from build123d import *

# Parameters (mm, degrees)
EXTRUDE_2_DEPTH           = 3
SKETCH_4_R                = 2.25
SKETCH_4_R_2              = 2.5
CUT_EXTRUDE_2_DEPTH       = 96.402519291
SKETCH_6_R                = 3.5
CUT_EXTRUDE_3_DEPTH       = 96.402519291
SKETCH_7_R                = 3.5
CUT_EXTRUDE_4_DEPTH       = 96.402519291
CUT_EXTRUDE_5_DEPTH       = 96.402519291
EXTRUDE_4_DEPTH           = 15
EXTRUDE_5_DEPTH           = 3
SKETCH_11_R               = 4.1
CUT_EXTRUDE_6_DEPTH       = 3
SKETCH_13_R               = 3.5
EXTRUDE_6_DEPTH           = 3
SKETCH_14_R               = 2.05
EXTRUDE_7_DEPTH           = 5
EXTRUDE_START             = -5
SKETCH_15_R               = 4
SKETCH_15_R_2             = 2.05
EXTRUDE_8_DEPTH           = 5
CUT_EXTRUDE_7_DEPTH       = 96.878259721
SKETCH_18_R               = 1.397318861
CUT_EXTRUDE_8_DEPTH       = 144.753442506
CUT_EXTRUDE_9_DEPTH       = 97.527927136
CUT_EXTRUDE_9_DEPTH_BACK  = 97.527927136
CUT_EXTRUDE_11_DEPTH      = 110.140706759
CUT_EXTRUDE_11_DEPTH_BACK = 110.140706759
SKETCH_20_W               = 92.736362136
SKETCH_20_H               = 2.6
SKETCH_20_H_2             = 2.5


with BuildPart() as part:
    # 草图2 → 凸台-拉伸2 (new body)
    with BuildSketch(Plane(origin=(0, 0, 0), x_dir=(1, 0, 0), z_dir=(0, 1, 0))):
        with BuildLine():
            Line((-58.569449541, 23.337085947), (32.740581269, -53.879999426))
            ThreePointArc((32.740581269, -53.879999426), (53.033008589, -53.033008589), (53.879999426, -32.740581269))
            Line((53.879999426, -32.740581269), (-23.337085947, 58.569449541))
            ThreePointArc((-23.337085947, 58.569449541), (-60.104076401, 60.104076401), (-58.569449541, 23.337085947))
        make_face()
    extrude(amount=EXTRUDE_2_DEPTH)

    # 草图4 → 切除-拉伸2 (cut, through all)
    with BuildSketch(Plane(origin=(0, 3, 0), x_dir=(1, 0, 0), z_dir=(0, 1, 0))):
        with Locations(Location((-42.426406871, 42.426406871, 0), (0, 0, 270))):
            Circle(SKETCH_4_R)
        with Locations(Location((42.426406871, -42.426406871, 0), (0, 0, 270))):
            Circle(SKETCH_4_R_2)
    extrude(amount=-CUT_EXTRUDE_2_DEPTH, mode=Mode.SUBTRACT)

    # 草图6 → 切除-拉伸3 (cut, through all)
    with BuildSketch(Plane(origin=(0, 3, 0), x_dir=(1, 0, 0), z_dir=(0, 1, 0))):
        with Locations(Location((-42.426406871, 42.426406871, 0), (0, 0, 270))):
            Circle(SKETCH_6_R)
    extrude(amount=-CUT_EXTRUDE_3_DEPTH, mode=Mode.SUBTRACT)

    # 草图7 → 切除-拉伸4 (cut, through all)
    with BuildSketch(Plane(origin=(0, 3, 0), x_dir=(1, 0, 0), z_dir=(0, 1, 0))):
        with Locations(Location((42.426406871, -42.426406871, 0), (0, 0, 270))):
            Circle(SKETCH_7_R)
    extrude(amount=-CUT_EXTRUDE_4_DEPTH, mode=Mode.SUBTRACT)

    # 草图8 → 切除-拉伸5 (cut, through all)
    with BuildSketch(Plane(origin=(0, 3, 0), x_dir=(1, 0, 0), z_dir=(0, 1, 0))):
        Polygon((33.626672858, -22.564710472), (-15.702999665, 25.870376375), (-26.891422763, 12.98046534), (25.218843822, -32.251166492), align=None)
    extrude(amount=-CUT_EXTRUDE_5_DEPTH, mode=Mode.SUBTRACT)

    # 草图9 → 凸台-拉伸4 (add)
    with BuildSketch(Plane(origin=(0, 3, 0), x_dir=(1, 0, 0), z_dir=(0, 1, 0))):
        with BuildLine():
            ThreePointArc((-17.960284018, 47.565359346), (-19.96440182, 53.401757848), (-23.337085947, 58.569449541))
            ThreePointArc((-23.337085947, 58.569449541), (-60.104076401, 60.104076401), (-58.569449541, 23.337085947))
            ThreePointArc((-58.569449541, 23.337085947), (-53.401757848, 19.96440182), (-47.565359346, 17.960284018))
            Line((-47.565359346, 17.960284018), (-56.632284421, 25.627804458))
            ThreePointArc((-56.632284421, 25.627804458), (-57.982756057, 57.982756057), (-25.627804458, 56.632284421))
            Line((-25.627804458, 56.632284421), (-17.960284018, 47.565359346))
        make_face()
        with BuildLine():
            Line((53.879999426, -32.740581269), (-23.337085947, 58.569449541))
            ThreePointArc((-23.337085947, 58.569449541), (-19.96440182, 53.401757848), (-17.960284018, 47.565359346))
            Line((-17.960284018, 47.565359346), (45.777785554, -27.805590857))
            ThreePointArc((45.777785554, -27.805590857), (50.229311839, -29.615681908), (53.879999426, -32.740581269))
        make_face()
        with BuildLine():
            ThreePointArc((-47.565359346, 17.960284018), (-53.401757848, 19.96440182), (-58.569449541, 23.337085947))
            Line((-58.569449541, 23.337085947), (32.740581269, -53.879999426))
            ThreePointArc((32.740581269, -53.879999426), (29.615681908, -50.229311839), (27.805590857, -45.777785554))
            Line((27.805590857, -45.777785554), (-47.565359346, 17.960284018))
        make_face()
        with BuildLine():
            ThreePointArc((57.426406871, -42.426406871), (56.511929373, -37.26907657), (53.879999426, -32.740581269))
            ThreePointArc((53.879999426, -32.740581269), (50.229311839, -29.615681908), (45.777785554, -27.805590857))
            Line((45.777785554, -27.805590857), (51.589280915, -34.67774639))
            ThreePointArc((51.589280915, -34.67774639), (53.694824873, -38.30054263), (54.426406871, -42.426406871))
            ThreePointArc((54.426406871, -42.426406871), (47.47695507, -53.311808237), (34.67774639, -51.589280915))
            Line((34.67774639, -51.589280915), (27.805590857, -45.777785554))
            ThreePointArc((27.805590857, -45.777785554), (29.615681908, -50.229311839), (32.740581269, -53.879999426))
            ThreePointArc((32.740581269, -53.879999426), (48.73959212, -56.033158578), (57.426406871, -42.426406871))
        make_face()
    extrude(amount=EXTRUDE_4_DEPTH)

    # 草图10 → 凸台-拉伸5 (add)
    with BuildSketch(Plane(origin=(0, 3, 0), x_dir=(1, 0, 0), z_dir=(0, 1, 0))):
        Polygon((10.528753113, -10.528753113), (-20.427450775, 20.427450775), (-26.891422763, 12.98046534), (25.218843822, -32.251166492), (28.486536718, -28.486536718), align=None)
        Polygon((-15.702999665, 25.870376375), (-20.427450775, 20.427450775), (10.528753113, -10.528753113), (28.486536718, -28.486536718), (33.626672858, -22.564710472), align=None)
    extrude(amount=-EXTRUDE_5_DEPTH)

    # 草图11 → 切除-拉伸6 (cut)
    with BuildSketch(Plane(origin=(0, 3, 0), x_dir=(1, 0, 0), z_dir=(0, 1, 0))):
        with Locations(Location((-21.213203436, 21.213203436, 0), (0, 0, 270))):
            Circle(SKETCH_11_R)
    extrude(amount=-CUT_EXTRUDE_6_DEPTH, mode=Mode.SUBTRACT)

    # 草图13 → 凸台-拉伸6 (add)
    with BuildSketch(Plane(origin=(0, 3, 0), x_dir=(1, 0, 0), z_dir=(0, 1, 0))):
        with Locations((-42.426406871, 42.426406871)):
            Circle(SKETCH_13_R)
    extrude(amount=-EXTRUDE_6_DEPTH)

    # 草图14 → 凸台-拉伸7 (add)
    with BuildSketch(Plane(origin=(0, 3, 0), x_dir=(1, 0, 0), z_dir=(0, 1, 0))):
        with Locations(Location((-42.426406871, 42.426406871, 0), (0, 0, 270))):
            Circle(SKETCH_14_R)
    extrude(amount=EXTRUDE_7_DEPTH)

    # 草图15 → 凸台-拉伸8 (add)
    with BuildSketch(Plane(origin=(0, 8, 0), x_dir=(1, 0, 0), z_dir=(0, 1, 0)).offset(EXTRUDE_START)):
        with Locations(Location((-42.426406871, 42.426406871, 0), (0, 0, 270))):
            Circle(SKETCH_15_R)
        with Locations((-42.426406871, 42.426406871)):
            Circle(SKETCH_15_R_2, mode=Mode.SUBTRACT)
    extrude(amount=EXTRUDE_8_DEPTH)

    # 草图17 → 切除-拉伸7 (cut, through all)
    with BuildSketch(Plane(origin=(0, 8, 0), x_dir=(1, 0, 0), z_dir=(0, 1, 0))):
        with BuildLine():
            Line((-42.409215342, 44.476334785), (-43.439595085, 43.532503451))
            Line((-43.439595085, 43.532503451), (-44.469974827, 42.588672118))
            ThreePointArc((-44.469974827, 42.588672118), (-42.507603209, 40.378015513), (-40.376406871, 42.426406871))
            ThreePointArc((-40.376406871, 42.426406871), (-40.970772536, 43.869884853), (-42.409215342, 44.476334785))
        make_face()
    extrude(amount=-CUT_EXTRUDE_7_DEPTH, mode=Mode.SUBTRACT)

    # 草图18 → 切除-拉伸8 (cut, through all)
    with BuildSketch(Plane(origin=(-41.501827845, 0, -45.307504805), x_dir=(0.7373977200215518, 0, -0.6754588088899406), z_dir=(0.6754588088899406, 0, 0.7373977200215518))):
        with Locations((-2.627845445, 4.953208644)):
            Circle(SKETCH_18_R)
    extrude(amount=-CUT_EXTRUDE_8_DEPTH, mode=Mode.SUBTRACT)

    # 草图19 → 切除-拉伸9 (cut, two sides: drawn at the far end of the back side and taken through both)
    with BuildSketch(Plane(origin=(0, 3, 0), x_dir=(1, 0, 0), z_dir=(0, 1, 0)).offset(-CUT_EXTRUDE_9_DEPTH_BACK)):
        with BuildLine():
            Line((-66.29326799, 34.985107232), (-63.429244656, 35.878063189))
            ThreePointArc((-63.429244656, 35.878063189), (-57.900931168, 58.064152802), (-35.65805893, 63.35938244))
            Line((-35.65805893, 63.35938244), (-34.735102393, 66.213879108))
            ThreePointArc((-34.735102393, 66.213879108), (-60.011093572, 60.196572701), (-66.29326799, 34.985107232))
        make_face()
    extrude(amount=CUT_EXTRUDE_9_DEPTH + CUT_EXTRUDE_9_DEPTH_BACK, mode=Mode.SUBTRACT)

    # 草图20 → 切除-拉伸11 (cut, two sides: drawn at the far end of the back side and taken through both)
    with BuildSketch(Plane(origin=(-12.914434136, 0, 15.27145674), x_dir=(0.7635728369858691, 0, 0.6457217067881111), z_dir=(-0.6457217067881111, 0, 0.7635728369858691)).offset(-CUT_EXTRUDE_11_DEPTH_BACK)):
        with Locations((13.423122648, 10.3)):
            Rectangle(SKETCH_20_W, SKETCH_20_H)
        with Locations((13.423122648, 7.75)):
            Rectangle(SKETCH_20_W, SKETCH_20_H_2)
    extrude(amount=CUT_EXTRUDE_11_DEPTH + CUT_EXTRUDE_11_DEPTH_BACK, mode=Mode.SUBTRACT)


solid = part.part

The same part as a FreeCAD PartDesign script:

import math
import FreeCAD as App
import Part
import Sketcher

V = App.Vector
Q = App.Units.Quantity


def add_polygon(sketch, points):
    """Adds a closed chain of lines whose ends are joined by coincident constraints."""
    first, n = sketch.GeometryCount, len(points)
    for a, b in zip(points, points[1:] + points[:1]):
        sketch.addGeometry(Part.LineSegment(App.Vector(*a, 0), App.Vector(*b, 0)), False)
    for i in range(n):
        sketch.addConstraint(Sketcher.Constraint("Coincident", first + i, 2, first + (i + 1) % n, 1))

doc = App.newDocument("Part")
body = doc.addObject("PartDesign::Body", "Body")

sketch1 = doc.addObject("Sketcher::SketchObject", "Sketch")
body.addObject(sketch1)
sketch1.AttachmentSupport = (doc.XZ_Plane, [""])
sketch1.MapMode = "FlatFace"
sketch1.addGeometry([
    Part.LineSegment(V(-59, -23, 0), V(33, 54, 0)),
    Part.ArcOfCircle(Part.Circle(V(42, 42, 0), V(0, 0, 1), 15), math.radians(-40), math.radians(130)),
    Part.LineSegment(V(54, 33, 0), V(-23, -59, 0)),
    Part.ArcOfCircle(Part.Circle(V(-42, -42, 0), V(0, 0, 1), 25), math.radians(130), math.radians(320)),
], False)
sketch1.addConstraint([
    Sketcher.Constraint("Tangent", 0, 2, 1, 2),
    Sketcher.Constraint("Tangent", 1, 1, 2, 1),
    Sketcher.Constraint("Tangent", 2, 2, 3, 2),
    Sketcher.Constraint("Tangent", 3, 1, 0, 1),
    Sketcher.Constraint("Symmetric", 1, 3, 3, 3, -1, 1),
    Sketcher.Constraint("Radius", 1, Q("15 mm")),
    Sketcher.Constraint("Radius", 3, Q("25 mm")),
    Sketcher.Constraint("DistanceY", -1, 1, 0, 2, Q("53.879999 mm")),
    Sketcher.Constraint("DistanceX", -1, 1, 1, 1, Q("53.879999 mm")),
])
pad1 = doc.addObject("PartDesign::Pad", "Pad")
body.addObject(pad1)
pad1.Profile = sketch1
pad1.Length = 3
pad1.Reversed = True

sketch2 = doc.addObject("Sketcher::SketchObject", "Sketch001")
body.addObject(sketch2)
sketch2.AttachmentSupport = (doc.XZ_Plane, [""])
sketch2.MapMode = "FlatFace"
sketch2.AttachmentOffset = App.Placement(V(0, 0, -3), App.Rotation())
sketch2.addGeometry([
    Part.Circle(V(-42.4, -42.4, 0), V(0, 0, 1), 2.2),
    Part.Circle(V(42.4, 42.4, 0), V(0, 0, 1), 2.5),
], False)
sketch2.addConstraint([
    Sketcher.Constraint("Symmetric", 0, 3, 1, 3, -1, 1),
    Sketcher.Constraint("Diameter", 1, Q("5 mm")),
    Sketcher.Constraint("Diameter", 0, Q("4.5 mm")),
    Sketcher.Constraint("DistanceX", 0, 3, -1, 1, Q("42.426407 mm")),
    Sketcher.Constraint("DistanceY", 0, 3, -1, 1, Q("42.426407 mm")),
])
pocket1 = doc.addObject("PartDesign::Pocket", "Pocket")
body.addObject(pocket1)
pocket1.Profile = sketch2
pocket1.Type = "ThroughAll"
pocket1.Reversed = True

sketch3 = doc.addObject("Sketcher::SketchObject", "Sketch002")
body.addObject(sketch3)
sketch3.AttachmentSupport = (doc.XZ_Plane, [""])
sketch3.MapMode = "FlatFace"
sketch3.AttachmentOffset = App.Placement(V(0, 0, -3), App.Rotation())
sketch3.addGeometry(Part.Circle(V(-42.4, -42.4, 0), V(0, 0, 1), 3.5), False)
sketch3.addConstraint([
    Sketcher.Constraint("Diameter", 0, Q("7 mm")),
    Sketcher.Constraint("DistanceX", 0, 3, -1, 1, Q("42.426407 mm")),
    Sketcher.Constraint("DistanceY", 0, 3, -1, 1, Q("42.426407 mm")),
])
pocket2 = doc.addObject("PartDesign::Pocket", "Pocket001")
body.addObject(pocket2)
pocket2.Profile = sketch3
pocket2.Type = "ThroughAll"
pocket2.Reversed = True

sketch4 = doc.addObject("Sketcher::SketchObject", "Sketch003")
body.addObject(sketch4)
sketch4.AttachmentSupport = (doc.XZ_Plane, [""])
sketch4.MapMode = "FlatFace"
sketch4.AttachmentOffset = App.Placement(V(0, 0, -3), App.Rotation())
sketch4.addGeometry(Part.Circle(V(42.4, 42.4, 0), V(0, 0, 1), 3.5), False)
sketch4.addConstraint([
    Sketcher.Constraint("Diameter", 0, Q("7 mm")),
    Sketcher.Constraint("DistanceX", -1, 1, 0, 3, Q("42.426407 mm")),
    Sketcher.Constraint("DistanceY", -1, 1, 0, 3, Q("42.426407 mm")),
])
pocket3 = doc.addObject("PartDesign::Pocket", "Pocket002")
body.addObject(pocket3)
pocket3.Profile = sketch4
pocket3.Type = "ThroughAll"
pocket3.Reversed = True

sketch5 = doc.addObject("Sketcher::SketchObject", "Sketch004")
body.addObject(sketch5)
sketch5.AttachmentSupport = (doc.XZ_Plane, [""])
sketch5.MapMode = "FlatFace"
sketch5.AttachmentOffset = App.Placement(V(0, 0, -3), App.Rotation())
add_polygon(sketch5, [(34, 23), (-16, -26), (-27, -13), (25, 32)])
sketch5.addConstraint([
    Sketcher.Constraint("Perpendicular", 1, 2),
    Sketcher.Constraint("Perpendicular", 2, 3),
    Sketcher.Constraint("DistanceX", 0, 2, -1, 1, Q("15.703 mm")),
    Sketcher.Constraint("Distance", 0, Q("69.133018 mm")),
    Sketcher.Constraint("Distance", 1, Q("17.06841 mm")),
    Sketcher.Constraint("DistanceY", -1, 1, 3, 2, Q("22.56471 mm")),
    Sketcher.Constraint("DistanceY", 0, 2, 1, 2, Q("12.889911 mm")),
    Sketcher.Constraint("DistanceY", 1, 2, 2, 2, Q("45.231632 mm")),
])
pocket4 = doc.addObject("PartDesign::Pocket", "Pocket003")
body.addObject(pocket4)
pocket4.Profile = sketch5
pocket4.Type = "ThroughAll"
pocket4.Reversed = True

sketch6 = doc.addObject("Sketcher::SketchObject", "Sketch005")
body.addObject(sketch6)
sketch6.AttachmentSupport = (doc.XZ_Plane, [""])
sketch6.MapMode = "FlatFace"
sketch6.AttachmentOffset = App.Placement(V(0, 0, -3), App.Rotation())
sketch6.addGeometry([
    Part.ArcOfCircle(Part.Circle(V(-42, -42, 0), V(0, 0, 1), 25), math.radians(130), math.radians(320)),
    Part.LineSegment(V(-59, -23, 0), V(33, 54, 0)),
    Part.ArcOfCircle(Part.Circle(V(42, 42, 0), V(0, 0, 1), 15), math.radians(0), math.radians(130)),
    Part.ArcOfCircle(Part.Circle(V(42, 42, 0), V(0, 0, 1), 15), math.radians(-40), math.radians(0)),
    Part.LineSegment(V(54, 33, 0), V(-23, -59, 0)),
    Part.LineSegment(V(28, 46, 0), V(-48, -18, 0)),
    Part.LineSegment(V(-48, -18, 0), V(-57, -26, 0)),
    Part.ArcOfCircle(Part.Circle(V(-42, -42, 0), V(0, 0, 1), 22), math.radians(130), math.radians(320)),
    Part.LineSegment(V(-26, -57, 0), V(-18, -48, 0)),
    Part.LineSegment(V(-18, -48, 0), V(46, 28, 0)),
    Part.LineSegment(V(46, 28, 0), V(52, 35, 0)),
    Part.ArcOfCircle(Part.Circle(V(42, 42, 0), V(0, 0, 1), 12), math.radians(-40), math.radians(0)),
    Part.ArcOfCircle(Part.Circle(V(42, 42, 0), V(0, 0, 1), 12), math.radians(0), math.radians(130)),
    Part.LineSegment(V(35, 52, 0), V(28, 46, 0)),
], False)
sketch6.addConstraint([
    Sketcher.Constraint("Tangent", 0, 1, 1, 1),
    Sketcher.Constraint("Tangent", 1, 2, 2, 2),
    Sketcher.Constraint("Tangent", 2, 1, 3, 2),
    Sketcher.Constraint("Tangent", 3, 1, 4, 1),
    Sketcher.Constraint("Tangent", 4, 2, 0, 2),
    Sketcher.Constraint("Coincident", 5, 2, 6, 1),
    Sketcher.Constraint("Tangent", 6, 2, 7, 1),
    Sketcher.Constraint("Tangent", 7, 2, 8, 1),
    Sketcher.Constraint("Coincident", 8, 2, 9, 1),
    Sketcher.Constraint("Coincident", 9, 2, 10, 1),
    Sketcher.Constraint("Tangent", 10, 2, 11, 1),
    Sketcher.Constraint("Tangent", 11, 2, 12, 1),
    Sketcher.Constraint("Tangent", 12, 2, 13, 1),
    Sketcher.Constraint("Coincident", 13, 2, 5, 1),
    Sketcher.Constraint("Coincident", 7, 3, 0, 3),
    Sketcher.Constraint("Coincident", 11, 3, 2, 3),
    Sketcher.Constraint("Equal", 2, 3),
    Sketcher.Constraint("Equal", 11, 12),
    Sketcher.Constraint("Symmetric", 0, 3, 2, 3, -1, 1),
    Sketcher.Constraint("Parallel", 1, 5),
    Sketcher.Constraint("Parallel", 5, 6),
    Sketcher.Constraint("Parallel", 4, 8),
    Sketcher.Constraint("Parallel", 8, 9),
    Sketcher.Constraint("Parallel", 9, 10),
    Sketcher.Constraint("Horizontal", 12, 3, 2, 1),
    Sketcher.Constraint("Horizontal", 2, 1, 11, 2),
    Sketcher.Constraint("Equal", 6, 8),
    Sketcher.Constraint("Equal", 5, 9),
    Sketcher.Constraint("Radius", 0, Q("25 mm")),
    Sketcher.Constraint("Radius", 2, Q("15 mm")),
    Sketcher.Constraint("Radius", 7, Q("22 mm")),
    Sketcher.Constraint("Distance", 10, Q("9 mm")),
    Sketcher.Constraint("DistanceY", -1, 1, 1, 2, Q("53.879999 mm")),
    Sketcher.Constraint("DistanceX", -1, 1, 3, 1, Q("53.879999 mm")),
    Sketcher.Constraint("DistanceY", 7, 2, 5, 2, Q("38.672 mm")),
])
pad2 = doc.addObject("PartDesign::Pad", "Pad001")
body.addObject(pad2)
pad2.Profile = sketch6
pad2.Length = 15
pad2.Reversed = True

sketch7 = doc.addObject("Sketcher::SketchObject", "Sketch006")
body.addObject(sketch7)
sketch7.AttachmentSupport = (doc.XZ_Plane, [""])
sketch7.MapMode = "FlatFace"
sketch7.AttachmentOffset = App.Placement(V(0, 0, -3), App.Rotation())
add_polygon(sketch7, [(-20.4, -20.4), (-26.9, -13), (25.2, 32.3), (28.5, 28.5), (33.6, 22.6), (-15.7, -25.9)])
sketch7.addConstraint([
    Sketcher.Constraint("Perpendicular", 0, 1),
    Sketcher.Constraint("Perpendicular", 1, 2),
    Sketcher.Constraint("Parallel", 2, 3),
    Sketcher.Constraint("Parallel", 3, 5),
    Sketcher.Constraint("DistanceX", 4, 2, -1, 1, Q("15.703 mm")),
    Sketcher.Constraint("Distance", 0, Q("9.861061 mm")),
    Sketcher.Constraint("Distance", 4, Q("69.133018 mm")),
    Sketcher.Constraint("Distance", 5, Q("7.207349 mm")),
    Sketcher.Constraint("DistanceY", -1, 1, 3, 2, Q("22.56471 mm")),
    Sketcher.Constraint("DistanceX", 5, 2, -1, 1, Q("20.427451 mm")),
    Sketcher.Constraint("DistanceY", 5, 2, -1, 1, Q("20.427451 mm")),
    Sketcher.Constraint("DistanceY", 2, 2, 1, 2, Q("3.76463 mm")),
])
pad3 = doc.addObject("PartDesign::Pad", "Pad002")
body.addObject(pad3)
pad3.Profile = sketch7
pad3.Length = 3

sketch8 = doc.addObject("Sketcher::SketchObject", "Sketch007")
body.addObject(sketch8)
sketch8.AttachmentSupport = (doc.XZ_Plane, [""])
sketch8.MapMode = "FlatFace"
sketch8.AttachmentOffset = App.Placement(V(0, 0, -3), App.Rotation())
sketch8.addGeometry(Part.Circle(V(-21.2, -21.2, 0), V(0, 0, 1), 4.1), False)
sketch8.addConstraint([
    Sketcher.Constraint("Diameter", 0, Q("8.2 mm")),
    Sketcher.Constraint("DistanceX", 0, 3, -1, 1, Q("21.213203 mm")),
    Sketcher.Constraint("DistanceY", 0, 3, -1, 1, Q("21.213203 mm")),
])
pocket5 = doc.addObject("PartDesign::Pocket", "Pocket004")
body.addObject(pocket5)
pocket5.Profile = sketch8
pocket5.Length = 3
pocket5.Reversed = True

sketch9 = doc.addObject("Sketcher::SketchObject", "Sketch008")
body.addObject(sketch9)
sketch9.AttachmentSupport = (doc.XZ_Plane, [""])
sketch9.MapMode = "FlatFace"
sketch9.AttachmentOffset = App.Placement(V(0, 0, -3), App.Rotation())
sketch9.addGeometry(Part.Circle(V(-42.4, -42.4, 0), V(0, 0, 1), 3.5), False)
sketch9.addConstraint([
    Sketcher.Constraint("Diameter", 0, Q("7 mm")),
    Sketcher.Constraint("DistanceX", 0, 3, -1, 1, Q("42.426407 mm")),
    Sketcher.Constraint("DistanceY", 0, 3, -1, 1, Q("42.426407 mm")),
])
pad4 = doc.addObject("PartDesign::Pad", "Pad003")
body.addObject(pad4)
pad4.Profile = sketch9
pad4.Length = 3

sketch10 = doc.addObject("Sketcher::SketchObject", "Sketch009")
body.addObject(sketch10)
sketch10.AttachmentSupport = (doc.XZ_Plane, [""])
sketch10.MapMode = "FlatFace"
sketch10.AttachmentOffset = App.Placement(V(0, 0, -3), App.Rotation())
sketch10.addGeometry(Part.Circle(V(-42.4, -42.4, 0), V(0, 0, 1), 2), False)
sketch10.addConstraint([
    Sketcher.Constraint("Diameter", 0, Q("4.1 mm")),
    Sketcher.Constraint("DistanceX", 0, 3, -1, 1, Q("42.426407 mm")),
    Sketcher.Constraint("DistanceY", 0, 3, -1, 1, Q("42.426407 mm")),
])
pad5 = doc.addObject("PartDesign::Pad", "Pad004")
body.addObject(pad5)
pad5.Profile = sketch10
pad5.Length = 5
pad5.Reversed = True

sketch11 = doc.addObject("Sketcher::SketchObject", "Sketch010")
body.addObject(sketch11)
sketch11.AttachmentSupport = (doc.XZ_Plane, [""])
sketch11.MapMode = "FlatFace"
sketch11.AttachmentOffset = App.Placement(V(0, 0, -3), App.Rotation())
sketch11.addGeometry([
    Part.Circle(V(-42.4, -42.4, 0), V(0, 0, 1), 4),
    Part.Circle(V(-42.4, -42.4, 0), V(0, 0, 1), 2),
], False)
sketch11.addConstraint([
    Sketcher.Constraint("Coincident", 1, 3, 0, 3),
    Sketcher.Constraint("Diameter", 0, Q("8 mm")),
    Sketcher.Constraint("Diameter", 1, Q("4.1 mm")),
    Sketcher.Constraint("DistanceX", 0, 3, -1, 1, Q("42.426407 mm")),
    Sketcher.Constraint("DistanceY", 0, 3, -1, 1, Q("42.426407 mm")),
])
pad6 = doc.addObject("PartDesign::Pad", "Pad005")
body.addObject(pad6)
pad6.Profile = sketch11
pad6.Length = 5
pad6.Reversed = True

sketch12 = doc.addObject("Sketcher::SketchObject", "Sketch011")
body.addObject(sketch12)
sketch12.AttachmentSupport = (doc.XZ_Plane, [""])
sketch12.MapMode = "FlatFace"
sketch12.AttachmentOffset = App.Placement(V(0, 0, -8), App.Rotation())
sketch12.addGeometry([
    Part.LineSegment(V(-42.4, -44.5, 0), V(-43.4, -43.5, 0)),
    Part.LineSegment(V(-43.4, -43.5, 0), V(-44.5, -42.6, 0)),
    Part.ArcOfCircle(Part.Circle(V(-42.4, -42.4, 0), V(0, 0, 1), 2), math.radians(0), math.radians(185)),
    Part.ArcOfCircle(Part.Circle(V(-42.4, -42.4, 0), V(0, 0, 1), 2), math.radians(-90), math.radians(0)),
], False)
sketch12.addConstraint([
    Sketcher.Constraint("Coincident", 0, 2, 1, 1),
    Sketcher.Constraint("Coincident", 1, 2, 2, 2),
    Sketcher.Constraint("Tangent", 2, 1, 3, 2),
    Sketcher.Constraint("Coincident", 3, 1, 0, 1),
    Sketcher.Constraint("Equal", 2, 3),
    Sketcher.Constraint("Parallel", 0, 1),
    Sketcher.Constraint("Horizontal", 3, 3, 2, 1),
    Sketcher.Constraint("Equal", 0, 1),
    Sketcher.Constraint("Radius", 2, Q("2.05 mm")),
    Sketcher.Constraint("Distance", 0, Q("1.397319 mm")),
    Sketcher.Constraint("DistanceX", 0, 2, 3, 3, Q("1.013188 mm")),
    Sketcher.Constraint("DistanceX", 2, 3, -1, 1, Q("42.426407 mm")),
    Sketcher.Constraint("DistanceY", 2, 3, -1, 1, Q("42.426407 mm")),
])
pocket6 = doc.addObject("PartDesign::Pocket", "Pocket005")
body.addObject(pocket6)
pocket6.Profile = sketch12
pocket6.Type = "ThroughAll"
pocket6.Reversed = True

sketch13 = doc.addObject("Sketcher::SketchObject", "Sketch012")
body.addObject(sketch13)
sketch13.Placement = App.Placement(V(-41.501828, 0, -45.307505), App.Rotation(V(0.73739772, 0, -0.675458809), V(0, 1, 0), V(0.675458809, 0, 0.73739772), "ZXY"))
sketch13.addGeometry(Part.Circle(V(-2.6, 5, 0), V(0, 0, 1), 1.4), False)
sketch13.addConstraint([
    Sketcher.Constraint("Diameter", 0, Q("2.794638 mm")),
    Sketcher.Constraint("DistanceY", -1, 1, 0, 3, Q("4.953209 mm")),
    Sketcher.Constraint("DistanceX", 0, 3, -1, 1, Q("2.627845 mm")),
])
pocket7 = doc.addObject("PartDesign::Pocket", "Pocket006")
body.addObject(pocket7)
pocket7.Profile = sketch13
pocket7.Type = "ThroughAll"

sketch14 = doc.addObject("Sketcher::SketchObject", "Sketch013")
body.addObject(sketch14)
sketch14.AttachmentSupport = (doc.XZ_Plane, [""])
sketch14.MapMode = "FlatFace"
sketch14.AttachmentOffset = App.Placement(V(0, 0, -3), App.Rotation())
sketch14.addGeometry([
    Part.LineSegment(V(-66.3, -35, 0), V(-63.4, -35.9, 0)),
    Part.ArcOfCircle(Part.Circle(V(-42.4, -42.4, 0), V(0, 0, 1), 22), math.radians(163), math.radians(288)),
    Part.LineSegment(V(-35.7, -63.4, 0), V(-34.7, -66.2, 0)),
    Part.ArcOfCircle(Part.Circle(V(-42.4, -42.4, 0), V(0, 0, 1), 25), math.radians(163), math.radians(288)),
], False)
sketch14.addConstraint([
    Sketcher.Constraint("Coincident", 0, 2, 1, 1),
    Sketcher.Constraint("Coincident", 1, 2, 2, 1),
    Sketcher.Constraint("Coincident", 2, 2, 3, 2),
    Sketcher.Constraint("Coincident", 3, 1, 0, 1),
    Sketcher.Constraint("Coincident", 3, 3, 1, 3),
    Sketcher.Constraint("Radius", 1, Q("22 mm")),
    Sketcher.Constraint("Radius", 3, Q("25 mm")),
    Sketcher.Constraint("DistanceY", 1, 3, 3, 1, Q("7.4413 mm")),
    Sketcher.Constraint("DistanceX", 1, 2, -1, 1, Q("35.658059 mm")),
    Sketcher.Constraint("DistanceY", 2, 2, -1, 1, Q("66.213879 mm")),
    Sketcher.Constraint("DistanceY", 1, 2, 0, 2, Q("27.481319 mm")),
    Sketcher.Constraint("DistanceX", 3, 1, 1, 2, Q("30.635209 mm")),
    Sketcher.Constraint("DistanceY", 2, 2, 3, 1, Q("31.228772 mm")),
])
pocket8 = doc.addObject("PartDesign::Pocket", "Pocket007")
body.addObject(pocket8)
pocket8.Profile = sketch14
pocket8.Type = "ThroughAll"
pocket8.Midplane = True

sketch15 = doc.addObject("Sketcher::SketchObject", "Sketch014")
body.addObject(sketch15)
sketch15.Placement = App.Placement(V(-12.914434, 0, 15.271457), App.Rotation(V(0.763572837, 0, 0.645721707), V(0, 1, 0), V(-0.645721707, 0, 0.763572837), "ZXY"))
add_polygon(sketch15, [(-33, 12), (-33, 7), (60, 7), (60, 12)])
sketch15.addConstraint([
    Sketcher.Constraint("Vertical", 0),
    Sketcher.Constraint("Horizontal", 1),
    Sketcher.Constraint("Vertical", 2),
    Sketcher.Constraint("Horizontal", 3),
    Sketcher.Constraint("DistanceY", 0, 2, 0, 1, Q("5.1 mm")),
    Sketcher.Constraint("DistanceY", -1, 1, 0, 2, Q("6.5 mm")),
    Sketcher.Constraint("DistanceX", 1, 1, 1, 2, Q("92.736362 mm")),
    Sketcher.Constraint("DistanceX", 0, 2, -1, 1, Q("32.945058 mm")),
])
pocket9 = doc.addObject("PartDesign::Pocket", "Pocket008")
body.addObject(pocket9)
pocket9.Profile = sketch15
pocket9.Type = "ThroughAll"
pocket9.Midplane = True

doc.recompute()
